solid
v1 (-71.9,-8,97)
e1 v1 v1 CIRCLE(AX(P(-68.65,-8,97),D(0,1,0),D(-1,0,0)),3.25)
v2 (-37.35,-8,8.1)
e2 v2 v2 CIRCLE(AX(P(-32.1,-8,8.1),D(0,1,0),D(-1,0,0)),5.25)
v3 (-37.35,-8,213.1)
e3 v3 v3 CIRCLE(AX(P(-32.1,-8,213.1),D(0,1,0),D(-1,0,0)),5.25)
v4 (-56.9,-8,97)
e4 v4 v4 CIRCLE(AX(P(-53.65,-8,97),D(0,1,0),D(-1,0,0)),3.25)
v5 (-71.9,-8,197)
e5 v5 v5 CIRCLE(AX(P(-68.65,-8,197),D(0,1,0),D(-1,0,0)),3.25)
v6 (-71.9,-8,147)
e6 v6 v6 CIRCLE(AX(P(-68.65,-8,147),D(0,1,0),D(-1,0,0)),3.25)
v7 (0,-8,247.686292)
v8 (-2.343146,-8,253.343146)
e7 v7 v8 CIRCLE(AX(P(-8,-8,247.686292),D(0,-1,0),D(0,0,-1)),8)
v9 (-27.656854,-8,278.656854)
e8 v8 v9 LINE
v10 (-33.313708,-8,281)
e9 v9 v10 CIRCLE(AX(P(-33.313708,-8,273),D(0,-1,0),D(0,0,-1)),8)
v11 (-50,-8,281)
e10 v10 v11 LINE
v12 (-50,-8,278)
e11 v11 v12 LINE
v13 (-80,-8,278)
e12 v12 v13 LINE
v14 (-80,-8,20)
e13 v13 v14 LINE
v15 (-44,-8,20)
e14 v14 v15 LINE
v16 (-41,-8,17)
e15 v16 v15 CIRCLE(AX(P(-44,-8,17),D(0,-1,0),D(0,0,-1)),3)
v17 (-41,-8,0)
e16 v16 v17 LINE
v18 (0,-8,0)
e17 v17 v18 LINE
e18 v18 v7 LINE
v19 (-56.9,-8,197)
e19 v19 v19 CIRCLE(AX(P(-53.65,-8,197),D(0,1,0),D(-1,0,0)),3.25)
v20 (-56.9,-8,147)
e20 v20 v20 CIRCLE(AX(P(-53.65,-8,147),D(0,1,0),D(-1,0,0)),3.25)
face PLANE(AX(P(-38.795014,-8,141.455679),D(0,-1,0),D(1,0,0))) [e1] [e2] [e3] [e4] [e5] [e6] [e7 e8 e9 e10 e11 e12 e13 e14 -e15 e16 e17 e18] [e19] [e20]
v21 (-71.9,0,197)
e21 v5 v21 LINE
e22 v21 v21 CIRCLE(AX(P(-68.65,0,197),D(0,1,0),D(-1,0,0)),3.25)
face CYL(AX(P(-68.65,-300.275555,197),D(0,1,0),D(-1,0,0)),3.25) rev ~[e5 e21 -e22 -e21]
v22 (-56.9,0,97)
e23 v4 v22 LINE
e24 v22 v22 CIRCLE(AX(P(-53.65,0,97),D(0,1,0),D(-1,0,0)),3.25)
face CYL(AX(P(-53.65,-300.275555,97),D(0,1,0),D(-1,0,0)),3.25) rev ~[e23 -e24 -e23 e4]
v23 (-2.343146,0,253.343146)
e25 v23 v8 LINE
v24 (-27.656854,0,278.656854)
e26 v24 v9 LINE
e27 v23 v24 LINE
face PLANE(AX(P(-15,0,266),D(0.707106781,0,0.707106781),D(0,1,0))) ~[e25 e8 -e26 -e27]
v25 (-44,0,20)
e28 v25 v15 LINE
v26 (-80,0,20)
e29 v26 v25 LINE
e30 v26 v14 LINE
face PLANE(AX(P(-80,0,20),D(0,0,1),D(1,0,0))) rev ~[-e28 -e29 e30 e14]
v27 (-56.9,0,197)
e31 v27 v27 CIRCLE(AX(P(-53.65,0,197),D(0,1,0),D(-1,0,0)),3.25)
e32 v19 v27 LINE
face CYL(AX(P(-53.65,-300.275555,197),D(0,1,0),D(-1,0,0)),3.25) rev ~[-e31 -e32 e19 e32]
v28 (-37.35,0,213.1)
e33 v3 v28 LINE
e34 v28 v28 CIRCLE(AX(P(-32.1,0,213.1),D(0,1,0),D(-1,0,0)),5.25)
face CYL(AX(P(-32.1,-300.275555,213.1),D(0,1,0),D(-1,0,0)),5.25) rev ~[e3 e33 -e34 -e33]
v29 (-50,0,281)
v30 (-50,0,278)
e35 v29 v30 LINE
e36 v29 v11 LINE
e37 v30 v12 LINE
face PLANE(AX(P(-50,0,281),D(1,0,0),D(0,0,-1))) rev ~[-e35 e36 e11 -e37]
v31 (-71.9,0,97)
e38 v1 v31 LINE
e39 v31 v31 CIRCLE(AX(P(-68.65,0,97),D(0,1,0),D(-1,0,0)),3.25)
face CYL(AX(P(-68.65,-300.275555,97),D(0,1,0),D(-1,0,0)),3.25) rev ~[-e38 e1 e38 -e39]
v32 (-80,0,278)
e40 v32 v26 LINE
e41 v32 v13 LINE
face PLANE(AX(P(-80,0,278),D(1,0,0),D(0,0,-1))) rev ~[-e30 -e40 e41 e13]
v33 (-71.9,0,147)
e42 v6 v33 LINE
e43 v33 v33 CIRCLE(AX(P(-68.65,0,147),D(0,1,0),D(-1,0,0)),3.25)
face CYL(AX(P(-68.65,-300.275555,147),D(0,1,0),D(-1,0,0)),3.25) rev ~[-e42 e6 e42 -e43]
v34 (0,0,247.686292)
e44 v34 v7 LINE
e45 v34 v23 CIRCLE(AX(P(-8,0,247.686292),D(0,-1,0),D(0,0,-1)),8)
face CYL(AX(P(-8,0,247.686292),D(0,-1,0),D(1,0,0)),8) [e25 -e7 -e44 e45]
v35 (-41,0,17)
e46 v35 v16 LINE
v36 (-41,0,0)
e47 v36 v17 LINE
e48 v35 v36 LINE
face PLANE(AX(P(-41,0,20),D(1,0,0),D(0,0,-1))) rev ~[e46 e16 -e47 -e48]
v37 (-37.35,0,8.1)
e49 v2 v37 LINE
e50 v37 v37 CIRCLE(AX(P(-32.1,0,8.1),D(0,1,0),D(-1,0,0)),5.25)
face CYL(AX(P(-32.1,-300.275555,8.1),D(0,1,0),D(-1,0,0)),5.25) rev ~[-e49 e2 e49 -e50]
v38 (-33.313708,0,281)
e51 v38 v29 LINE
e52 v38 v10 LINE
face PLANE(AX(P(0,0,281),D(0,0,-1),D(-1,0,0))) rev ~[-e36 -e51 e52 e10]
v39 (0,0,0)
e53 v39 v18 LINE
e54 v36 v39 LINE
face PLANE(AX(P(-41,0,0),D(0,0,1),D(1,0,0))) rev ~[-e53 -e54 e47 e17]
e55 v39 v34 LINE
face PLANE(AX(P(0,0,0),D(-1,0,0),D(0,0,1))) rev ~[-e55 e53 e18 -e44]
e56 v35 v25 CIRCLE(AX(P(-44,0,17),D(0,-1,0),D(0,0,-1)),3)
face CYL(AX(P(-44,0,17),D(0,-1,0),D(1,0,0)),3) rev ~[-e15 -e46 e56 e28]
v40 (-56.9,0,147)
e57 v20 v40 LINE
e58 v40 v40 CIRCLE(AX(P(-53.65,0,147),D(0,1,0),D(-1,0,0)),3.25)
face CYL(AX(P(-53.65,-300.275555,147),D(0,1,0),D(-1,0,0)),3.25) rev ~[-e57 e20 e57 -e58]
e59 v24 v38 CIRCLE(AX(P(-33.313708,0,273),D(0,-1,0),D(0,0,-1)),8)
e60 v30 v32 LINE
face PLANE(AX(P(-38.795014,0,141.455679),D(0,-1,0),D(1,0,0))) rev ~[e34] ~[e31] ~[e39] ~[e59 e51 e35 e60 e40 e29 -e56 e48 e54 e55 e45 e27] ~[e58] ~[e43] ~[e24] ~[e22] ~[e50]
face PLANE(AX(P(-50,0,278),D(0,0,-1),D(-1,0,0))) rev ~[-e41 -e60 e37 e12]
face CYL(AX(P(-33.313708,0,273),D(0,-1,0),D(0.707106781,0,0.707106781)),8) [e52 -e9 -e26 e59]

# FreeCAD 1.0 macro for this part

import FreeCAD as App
import Part
import Sketcher

V = App.Vector
Q = App.Units.Quantity


def edges_at(feature, points):
    """Names of the edges that pass closest to the given points."""
    edges = feature.Shape.Edges
    near = lambda p: min(range(len(edges)), key=lambda i: edges[i].distToShape(Part.Vertex(*p))[0])
    return sorted({f"Edge{near(p) + 1}" for p in points})


def add_polygon(sketch, points):
    """Adds a closed chain of lines whose ends are joined by coincident constraints."""
    first, n = sketch.GeometryCount, len(points)
    for a, b in zip(points, points[1:] + points[:1]):
        sketch.addGeometry(Part.LineSegment(App.Vector(*a, 0), App.Vector(*b, 0)), False)
    for i in range(n):
        sketch.addConstraint(Sketcher.Constraint("Coincident", first + i, 2, first + (i + 1) % n, 1))

doc = App.newDocument("Part")
body = doc.addObject("PartDesign::Body", "Body")

sketch1 = doc.addObject("Sketcher::SketchObject", "Sketch")
body.addObject(sketch1)
sketch1.AttachmentSupport = (doc.XZ_Plane, [""])
sketch1.MapMode = "FlatFace"
add_polygon(sketch1, [(-41, 0), (0, 0), (0, 281), (-50, 281), (-50, 278), (-80, 278), (-80, 20), (-41, 20)])
sketch1.addConstraint(Sketcher.Constraint("Horizontal", 0))
sketch1.addConstraint(Sketcher.Constraint("Vertical", 1))
sketch1.addConstraint(Sketcher.Constraint("Horizontal", 2))
sketch1.addConstraint(Sketcher.Constraint("Vertical", 3))
sketch1.addConstraint(Sketcher.Constraint("Horizontal", 4))
sketch1.addConstraint(Sketcher.Constraint("Vertical", 5))
sketch1.addConstraint(Sketcher.Constraint("Horizontal", 6))
sketch1.addConstraint(Sketcher.Constraint("Vertical", 7))
sketch1.addConstraint(Sketcher.Constraint("Coincident", 0, 2, -1, 1))
sketch1.addConstraint(Sketcher.Constraint("DistanceX", 0, 1, 0, 2, Q("41 mm")))
sketch1.addConstraint(Sketcher.Constraint("DistanceX", 2, 2, 2, 1, Q("50 mm")))
sketch1.addConstraint(Sketcher.Constraint("DistanceX", 4, 2, 4, 1, Q("30 mm")))
sketch1.addConstraint(Sketcher.Constraint("DistanceY", 1, 1, 1, 2, Q("281 mm")))
sketch1.addConstraint(Sketcher.Constraint("DistanceY", 3, 2, 3, 1, Q("3 mm")))
sketch1.addConstraint(Sketcher.Constraint("DistanceY", 5, 2, 5, 1, Q("258 mm")))
pad1 = doc.addObject("PartDesign::Pad", "Pad")
body.addObject(pad1)
pad1.Profile = sketch1
pad1.Length = 8
doc.recompute()

chamfer = doc.addObject("PartDesign::Chamfer", "Chamfer")
body.addObject(chamfer)
chamfer.Base = (pad1, edges_at(pad1, [(0, -4, 281)]))
chamfer.Size = 30
doc.recompute()

fillet = doc.addObject("PartDesign::Fillet", "Fillet")
body.addObject(fillet)
fillet.Base = (chamfer, edges_at(chamfer, [(-30, -4, 281), (0, -4, 251)]))
fillet.Radius = 8
doc.recompute()

fillet2 = doc.addObject("PartDesign::Fillet", "Fillet001")
body.addObject(fillet2)
fillet2.Base = (fillet, edges_at(fillet, [(-41, -4, 20)]))
fillet2.Radius = 3

sketch2 = doc.addObject("Sketcher::SketchObject", "Sketch001")
body.addObject(sketch2)
sketch2.AttachmentSupport = (doc.XZ_Plane, [""])
sketch2.MapMode = "FlatFace"
sketch2.AttachmentOffset = App.Placement(V(0, 0, 8), App.Rotation())
sketch2.addGeometry(Part.Circle(V(-68.7, 197, 0), V(0, 0, 1), 3.2), False)
sketch2.addGeometry(Part.Circle(V(-53.6, 197, 0), V(0, 0, 1), 3.2), False)
sketch2.addGeometry(Part.Circle(V(-53.6, 147, 0), V(0, 0, 1), 3.2), False)
sketch2.addGeometry(Part.Circle(V(-68.7, 147, 0), V(0, 0, 1), 3.2), False)
sketch2.addGeometry(Part.Circle(V(-53.6, 97, 0), V(0, 0, 1), 3.2), False)
sketch2.addGeometry(Part.Circle(V(-68.7, 97, 0), V(0, 0, 1), 3.2), False)
sketch2.addConstraint(Sketcher.Constraint("Equal", 0, 1))
sketch2.addConstraint(Sketcher.Constraint("Equal", 1, 2))
sketch2.addConstraint(Sketcher.Constraint("Equal", 2, 3))
sketch2.addConstraint(Sketcher.Constraint("Equal", 3, 4))
sketch2.addConstraint(Sketcher.Constraint("Equal", 4, 5))
sketch2.addConstraint(Sketcher.Constraint("Horizontal", 0, 3, 1, 3))
sketch2.addConstraint(Sketcher.Constraint("Horizontal", 2, 3, 3, 3))
sketch2.addConstraint(Sketcher.Constraint("Horizontal", 4, 3, 5, 3))
sketch2.addConstraint(Sketcher.Constraint("Vertical", 1, 3, 2, 3))
sketch2.addConstraint(Sketcher.Constraint("Vertical", 0, 3, 3, 3))
sketch2.addConstraint(Sketcher.Constraint("Vertical", 2, 3, 4, 3))
sketch2.addConstraint(Sketcher.Constraint("Vertical", 3, 3, 5, 3))
sketch2.addConstraint(Sketcher.Constraint("Diameter", 0, Q("6.5 mm")))
sketch2.addConstraint(Sketcher.Constraint("DistanceY", -1, 1, 0, 3, Q("197 mm")))
sketch2.addConstraint(Sketcher.Constraint("DistanceY", -1, 1, 2, 3, Q("147 mm")))
sketch2.addConstraint(Sketcher.Constraint("DistanceY", -1, 1, 4, 3, Q("97 mm")))
sketch2.addConstraint(Sketcher.Constraint("DistanceX", 0, 3, 1, 3, Q("15 mm")))
sketch2.addConstraint(Sketcher.Constraint("DistanceX", 0, 3, -1, 1, Q("68.65 mm")))
doc.recompute()
hole = doc.addObject("PartDesign::Hole", "Hole")
body.addObject(hole)
hole.Profile = sketch2
hole.ThreadType = "None"
hole.Diameter = 6.5
hole.DepthType = "ThroughAll"

sketch3 = doc.addObject("Sketcher::SketchObject", "Sketch002")
body.addObject(sketch3)
sketch3.AttachmentSupport = (doc.XZ_Plane, [""])
sketch3.MapMode = "FlatFace"
sketch3.AttachmentOffset = App.Placement(V(0, 0, 8), App.Rotation())
sketch3.addGeometry(Part.Circle(V(-32, 213, 0), V(0, 0, 1), 5), False)
sketch3.addGeometry(Part.Circle(V(-32, 8, 0), V(0, 0, 1), 5), False)
sketch3.addConstraint(Sketcher.Constraint("Equal", 0, 1))
sketch3.addConstraint(Sketcher.Constraint("Vertical", 0, 3, 1, 3))
sketch3.addConstraint(Sketcher.Constraint("Diameter", 0, Q("10.5 mm")))
sketch3.addConstraint(Sketcher.Constraint("DistanceY", 1, 3, 0, 3, Q("205 mm")))
sketch3.addConstraint(Sketcher.Constraint("DistanceX", 0, 3, -1, 1, Q("32.1 mm")))
sketch3.addConstraint(Sketcher.Constraint("DistanceY", -1, 1, 0, 3, Q("213.1 mm")))
doc.recompute()
hole2 = doc.addObject("PartDesign::Hole", "Hole001")
body.addObject(hole2)
hole2.Profile = sketch3
hole2.ThreadType = "None"
hole2.Diameter = 10.5
hole2.DepthType = "ThroughAll"

doc.recompute()
